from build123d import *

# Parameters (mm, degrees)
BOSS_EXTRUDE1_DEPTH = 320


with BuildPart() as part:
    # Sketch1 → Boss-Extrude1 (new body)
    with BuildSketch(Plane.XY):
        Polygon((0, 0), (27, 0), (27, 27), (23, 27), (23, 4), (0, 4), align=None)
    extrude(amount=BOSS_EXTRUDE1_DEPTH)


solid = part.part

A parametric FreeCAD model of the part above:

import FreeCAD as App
import Part
import Sketcher
from FreeCAD import Vector


def add_polygon(sketch, points):
    """Adds a closed chain of lines whose ends are joined by coincident constraints."""
    first, n = sketch.GeometryCount, len(points)
    for a, b in zip(points, points[1:] + points[:1]):
        sketch.addGeometry(Part.LineSegment(App.Vector(*a, 0), App.Vector(*b, 0)), False)
    for i in range(n):
        sketch.addConstraint(Sketcher.Constraint("Coincident", first + i, 2, first + (i + 1) % n, 1))

doc = App.newDocument("Part")
params = doc.addObject("Spreadsheet::Sheet", "Params")
for row, (alias, value) in enumerate([
    ("sketch1_width", "27 mm"),
    ("sketch1_width2", "4 mm"),
    ("pad1_length", "320 mm"),
], start=1):
    params.set(f"A{row}", alias)
    params.set(f"B{row}", "=" + value)
    params.setAlias(f"B{row}", alias)

body = doc.addObject("PartDesign::Body", "Body")

# Sketch on XY plane
sketch1 = doc.addObject("Sketcher::SketchObject", "Sketch")
body.addObject(sketch1)
sketch1.AttachmentSupport = (doc.XY_Plane, [""])
sketch1.MapMode = "FlatFace"
add_polygon(sketch1, [(0, 0), (27, 0), (27, 27), (23, 27), (23, 4), (0, 4)])  # lines 0-5
sketch1.addConstraint([
    Sketcher.Constraint("Horizontal", 0),
    Sketcher.Constraint("Vertical", 1),
    Sketcher.Constraint("Horizontal", 2),
    Sketcher.Constraint("Vertical", 3),
    Sketcher.Constraint("Horizontal", 4),
    Sketcher.Constraint("Vertical", 5),
    Sketcher.Constraint("Coincident", 5, 2, -1, 1),
    Sketcher.Constraint("Equal", 0, 1),
    Sketcher.Constraint("Equal", 4, 3),
    Sketcher.Constraint("DistanceX", 0, 1, 0, 2, 27.0),
    Sketcher.Constraint("DistanceX", 2, 2, 2, 1, 4.0),
])
sketch1.setExpression("Constraints[15]", "Params.sketch1_width")
sketch1.setExpression("Constraints[16]", "Params.sketch1_width2")
pad1 = doc.addObject("PartDesign::Pad", "Pad")
body.addObject(pad1)
pad1.Profile = sketch1
pad1.setExpression("Length", "Params.pad1_length")

doc.recompute()
